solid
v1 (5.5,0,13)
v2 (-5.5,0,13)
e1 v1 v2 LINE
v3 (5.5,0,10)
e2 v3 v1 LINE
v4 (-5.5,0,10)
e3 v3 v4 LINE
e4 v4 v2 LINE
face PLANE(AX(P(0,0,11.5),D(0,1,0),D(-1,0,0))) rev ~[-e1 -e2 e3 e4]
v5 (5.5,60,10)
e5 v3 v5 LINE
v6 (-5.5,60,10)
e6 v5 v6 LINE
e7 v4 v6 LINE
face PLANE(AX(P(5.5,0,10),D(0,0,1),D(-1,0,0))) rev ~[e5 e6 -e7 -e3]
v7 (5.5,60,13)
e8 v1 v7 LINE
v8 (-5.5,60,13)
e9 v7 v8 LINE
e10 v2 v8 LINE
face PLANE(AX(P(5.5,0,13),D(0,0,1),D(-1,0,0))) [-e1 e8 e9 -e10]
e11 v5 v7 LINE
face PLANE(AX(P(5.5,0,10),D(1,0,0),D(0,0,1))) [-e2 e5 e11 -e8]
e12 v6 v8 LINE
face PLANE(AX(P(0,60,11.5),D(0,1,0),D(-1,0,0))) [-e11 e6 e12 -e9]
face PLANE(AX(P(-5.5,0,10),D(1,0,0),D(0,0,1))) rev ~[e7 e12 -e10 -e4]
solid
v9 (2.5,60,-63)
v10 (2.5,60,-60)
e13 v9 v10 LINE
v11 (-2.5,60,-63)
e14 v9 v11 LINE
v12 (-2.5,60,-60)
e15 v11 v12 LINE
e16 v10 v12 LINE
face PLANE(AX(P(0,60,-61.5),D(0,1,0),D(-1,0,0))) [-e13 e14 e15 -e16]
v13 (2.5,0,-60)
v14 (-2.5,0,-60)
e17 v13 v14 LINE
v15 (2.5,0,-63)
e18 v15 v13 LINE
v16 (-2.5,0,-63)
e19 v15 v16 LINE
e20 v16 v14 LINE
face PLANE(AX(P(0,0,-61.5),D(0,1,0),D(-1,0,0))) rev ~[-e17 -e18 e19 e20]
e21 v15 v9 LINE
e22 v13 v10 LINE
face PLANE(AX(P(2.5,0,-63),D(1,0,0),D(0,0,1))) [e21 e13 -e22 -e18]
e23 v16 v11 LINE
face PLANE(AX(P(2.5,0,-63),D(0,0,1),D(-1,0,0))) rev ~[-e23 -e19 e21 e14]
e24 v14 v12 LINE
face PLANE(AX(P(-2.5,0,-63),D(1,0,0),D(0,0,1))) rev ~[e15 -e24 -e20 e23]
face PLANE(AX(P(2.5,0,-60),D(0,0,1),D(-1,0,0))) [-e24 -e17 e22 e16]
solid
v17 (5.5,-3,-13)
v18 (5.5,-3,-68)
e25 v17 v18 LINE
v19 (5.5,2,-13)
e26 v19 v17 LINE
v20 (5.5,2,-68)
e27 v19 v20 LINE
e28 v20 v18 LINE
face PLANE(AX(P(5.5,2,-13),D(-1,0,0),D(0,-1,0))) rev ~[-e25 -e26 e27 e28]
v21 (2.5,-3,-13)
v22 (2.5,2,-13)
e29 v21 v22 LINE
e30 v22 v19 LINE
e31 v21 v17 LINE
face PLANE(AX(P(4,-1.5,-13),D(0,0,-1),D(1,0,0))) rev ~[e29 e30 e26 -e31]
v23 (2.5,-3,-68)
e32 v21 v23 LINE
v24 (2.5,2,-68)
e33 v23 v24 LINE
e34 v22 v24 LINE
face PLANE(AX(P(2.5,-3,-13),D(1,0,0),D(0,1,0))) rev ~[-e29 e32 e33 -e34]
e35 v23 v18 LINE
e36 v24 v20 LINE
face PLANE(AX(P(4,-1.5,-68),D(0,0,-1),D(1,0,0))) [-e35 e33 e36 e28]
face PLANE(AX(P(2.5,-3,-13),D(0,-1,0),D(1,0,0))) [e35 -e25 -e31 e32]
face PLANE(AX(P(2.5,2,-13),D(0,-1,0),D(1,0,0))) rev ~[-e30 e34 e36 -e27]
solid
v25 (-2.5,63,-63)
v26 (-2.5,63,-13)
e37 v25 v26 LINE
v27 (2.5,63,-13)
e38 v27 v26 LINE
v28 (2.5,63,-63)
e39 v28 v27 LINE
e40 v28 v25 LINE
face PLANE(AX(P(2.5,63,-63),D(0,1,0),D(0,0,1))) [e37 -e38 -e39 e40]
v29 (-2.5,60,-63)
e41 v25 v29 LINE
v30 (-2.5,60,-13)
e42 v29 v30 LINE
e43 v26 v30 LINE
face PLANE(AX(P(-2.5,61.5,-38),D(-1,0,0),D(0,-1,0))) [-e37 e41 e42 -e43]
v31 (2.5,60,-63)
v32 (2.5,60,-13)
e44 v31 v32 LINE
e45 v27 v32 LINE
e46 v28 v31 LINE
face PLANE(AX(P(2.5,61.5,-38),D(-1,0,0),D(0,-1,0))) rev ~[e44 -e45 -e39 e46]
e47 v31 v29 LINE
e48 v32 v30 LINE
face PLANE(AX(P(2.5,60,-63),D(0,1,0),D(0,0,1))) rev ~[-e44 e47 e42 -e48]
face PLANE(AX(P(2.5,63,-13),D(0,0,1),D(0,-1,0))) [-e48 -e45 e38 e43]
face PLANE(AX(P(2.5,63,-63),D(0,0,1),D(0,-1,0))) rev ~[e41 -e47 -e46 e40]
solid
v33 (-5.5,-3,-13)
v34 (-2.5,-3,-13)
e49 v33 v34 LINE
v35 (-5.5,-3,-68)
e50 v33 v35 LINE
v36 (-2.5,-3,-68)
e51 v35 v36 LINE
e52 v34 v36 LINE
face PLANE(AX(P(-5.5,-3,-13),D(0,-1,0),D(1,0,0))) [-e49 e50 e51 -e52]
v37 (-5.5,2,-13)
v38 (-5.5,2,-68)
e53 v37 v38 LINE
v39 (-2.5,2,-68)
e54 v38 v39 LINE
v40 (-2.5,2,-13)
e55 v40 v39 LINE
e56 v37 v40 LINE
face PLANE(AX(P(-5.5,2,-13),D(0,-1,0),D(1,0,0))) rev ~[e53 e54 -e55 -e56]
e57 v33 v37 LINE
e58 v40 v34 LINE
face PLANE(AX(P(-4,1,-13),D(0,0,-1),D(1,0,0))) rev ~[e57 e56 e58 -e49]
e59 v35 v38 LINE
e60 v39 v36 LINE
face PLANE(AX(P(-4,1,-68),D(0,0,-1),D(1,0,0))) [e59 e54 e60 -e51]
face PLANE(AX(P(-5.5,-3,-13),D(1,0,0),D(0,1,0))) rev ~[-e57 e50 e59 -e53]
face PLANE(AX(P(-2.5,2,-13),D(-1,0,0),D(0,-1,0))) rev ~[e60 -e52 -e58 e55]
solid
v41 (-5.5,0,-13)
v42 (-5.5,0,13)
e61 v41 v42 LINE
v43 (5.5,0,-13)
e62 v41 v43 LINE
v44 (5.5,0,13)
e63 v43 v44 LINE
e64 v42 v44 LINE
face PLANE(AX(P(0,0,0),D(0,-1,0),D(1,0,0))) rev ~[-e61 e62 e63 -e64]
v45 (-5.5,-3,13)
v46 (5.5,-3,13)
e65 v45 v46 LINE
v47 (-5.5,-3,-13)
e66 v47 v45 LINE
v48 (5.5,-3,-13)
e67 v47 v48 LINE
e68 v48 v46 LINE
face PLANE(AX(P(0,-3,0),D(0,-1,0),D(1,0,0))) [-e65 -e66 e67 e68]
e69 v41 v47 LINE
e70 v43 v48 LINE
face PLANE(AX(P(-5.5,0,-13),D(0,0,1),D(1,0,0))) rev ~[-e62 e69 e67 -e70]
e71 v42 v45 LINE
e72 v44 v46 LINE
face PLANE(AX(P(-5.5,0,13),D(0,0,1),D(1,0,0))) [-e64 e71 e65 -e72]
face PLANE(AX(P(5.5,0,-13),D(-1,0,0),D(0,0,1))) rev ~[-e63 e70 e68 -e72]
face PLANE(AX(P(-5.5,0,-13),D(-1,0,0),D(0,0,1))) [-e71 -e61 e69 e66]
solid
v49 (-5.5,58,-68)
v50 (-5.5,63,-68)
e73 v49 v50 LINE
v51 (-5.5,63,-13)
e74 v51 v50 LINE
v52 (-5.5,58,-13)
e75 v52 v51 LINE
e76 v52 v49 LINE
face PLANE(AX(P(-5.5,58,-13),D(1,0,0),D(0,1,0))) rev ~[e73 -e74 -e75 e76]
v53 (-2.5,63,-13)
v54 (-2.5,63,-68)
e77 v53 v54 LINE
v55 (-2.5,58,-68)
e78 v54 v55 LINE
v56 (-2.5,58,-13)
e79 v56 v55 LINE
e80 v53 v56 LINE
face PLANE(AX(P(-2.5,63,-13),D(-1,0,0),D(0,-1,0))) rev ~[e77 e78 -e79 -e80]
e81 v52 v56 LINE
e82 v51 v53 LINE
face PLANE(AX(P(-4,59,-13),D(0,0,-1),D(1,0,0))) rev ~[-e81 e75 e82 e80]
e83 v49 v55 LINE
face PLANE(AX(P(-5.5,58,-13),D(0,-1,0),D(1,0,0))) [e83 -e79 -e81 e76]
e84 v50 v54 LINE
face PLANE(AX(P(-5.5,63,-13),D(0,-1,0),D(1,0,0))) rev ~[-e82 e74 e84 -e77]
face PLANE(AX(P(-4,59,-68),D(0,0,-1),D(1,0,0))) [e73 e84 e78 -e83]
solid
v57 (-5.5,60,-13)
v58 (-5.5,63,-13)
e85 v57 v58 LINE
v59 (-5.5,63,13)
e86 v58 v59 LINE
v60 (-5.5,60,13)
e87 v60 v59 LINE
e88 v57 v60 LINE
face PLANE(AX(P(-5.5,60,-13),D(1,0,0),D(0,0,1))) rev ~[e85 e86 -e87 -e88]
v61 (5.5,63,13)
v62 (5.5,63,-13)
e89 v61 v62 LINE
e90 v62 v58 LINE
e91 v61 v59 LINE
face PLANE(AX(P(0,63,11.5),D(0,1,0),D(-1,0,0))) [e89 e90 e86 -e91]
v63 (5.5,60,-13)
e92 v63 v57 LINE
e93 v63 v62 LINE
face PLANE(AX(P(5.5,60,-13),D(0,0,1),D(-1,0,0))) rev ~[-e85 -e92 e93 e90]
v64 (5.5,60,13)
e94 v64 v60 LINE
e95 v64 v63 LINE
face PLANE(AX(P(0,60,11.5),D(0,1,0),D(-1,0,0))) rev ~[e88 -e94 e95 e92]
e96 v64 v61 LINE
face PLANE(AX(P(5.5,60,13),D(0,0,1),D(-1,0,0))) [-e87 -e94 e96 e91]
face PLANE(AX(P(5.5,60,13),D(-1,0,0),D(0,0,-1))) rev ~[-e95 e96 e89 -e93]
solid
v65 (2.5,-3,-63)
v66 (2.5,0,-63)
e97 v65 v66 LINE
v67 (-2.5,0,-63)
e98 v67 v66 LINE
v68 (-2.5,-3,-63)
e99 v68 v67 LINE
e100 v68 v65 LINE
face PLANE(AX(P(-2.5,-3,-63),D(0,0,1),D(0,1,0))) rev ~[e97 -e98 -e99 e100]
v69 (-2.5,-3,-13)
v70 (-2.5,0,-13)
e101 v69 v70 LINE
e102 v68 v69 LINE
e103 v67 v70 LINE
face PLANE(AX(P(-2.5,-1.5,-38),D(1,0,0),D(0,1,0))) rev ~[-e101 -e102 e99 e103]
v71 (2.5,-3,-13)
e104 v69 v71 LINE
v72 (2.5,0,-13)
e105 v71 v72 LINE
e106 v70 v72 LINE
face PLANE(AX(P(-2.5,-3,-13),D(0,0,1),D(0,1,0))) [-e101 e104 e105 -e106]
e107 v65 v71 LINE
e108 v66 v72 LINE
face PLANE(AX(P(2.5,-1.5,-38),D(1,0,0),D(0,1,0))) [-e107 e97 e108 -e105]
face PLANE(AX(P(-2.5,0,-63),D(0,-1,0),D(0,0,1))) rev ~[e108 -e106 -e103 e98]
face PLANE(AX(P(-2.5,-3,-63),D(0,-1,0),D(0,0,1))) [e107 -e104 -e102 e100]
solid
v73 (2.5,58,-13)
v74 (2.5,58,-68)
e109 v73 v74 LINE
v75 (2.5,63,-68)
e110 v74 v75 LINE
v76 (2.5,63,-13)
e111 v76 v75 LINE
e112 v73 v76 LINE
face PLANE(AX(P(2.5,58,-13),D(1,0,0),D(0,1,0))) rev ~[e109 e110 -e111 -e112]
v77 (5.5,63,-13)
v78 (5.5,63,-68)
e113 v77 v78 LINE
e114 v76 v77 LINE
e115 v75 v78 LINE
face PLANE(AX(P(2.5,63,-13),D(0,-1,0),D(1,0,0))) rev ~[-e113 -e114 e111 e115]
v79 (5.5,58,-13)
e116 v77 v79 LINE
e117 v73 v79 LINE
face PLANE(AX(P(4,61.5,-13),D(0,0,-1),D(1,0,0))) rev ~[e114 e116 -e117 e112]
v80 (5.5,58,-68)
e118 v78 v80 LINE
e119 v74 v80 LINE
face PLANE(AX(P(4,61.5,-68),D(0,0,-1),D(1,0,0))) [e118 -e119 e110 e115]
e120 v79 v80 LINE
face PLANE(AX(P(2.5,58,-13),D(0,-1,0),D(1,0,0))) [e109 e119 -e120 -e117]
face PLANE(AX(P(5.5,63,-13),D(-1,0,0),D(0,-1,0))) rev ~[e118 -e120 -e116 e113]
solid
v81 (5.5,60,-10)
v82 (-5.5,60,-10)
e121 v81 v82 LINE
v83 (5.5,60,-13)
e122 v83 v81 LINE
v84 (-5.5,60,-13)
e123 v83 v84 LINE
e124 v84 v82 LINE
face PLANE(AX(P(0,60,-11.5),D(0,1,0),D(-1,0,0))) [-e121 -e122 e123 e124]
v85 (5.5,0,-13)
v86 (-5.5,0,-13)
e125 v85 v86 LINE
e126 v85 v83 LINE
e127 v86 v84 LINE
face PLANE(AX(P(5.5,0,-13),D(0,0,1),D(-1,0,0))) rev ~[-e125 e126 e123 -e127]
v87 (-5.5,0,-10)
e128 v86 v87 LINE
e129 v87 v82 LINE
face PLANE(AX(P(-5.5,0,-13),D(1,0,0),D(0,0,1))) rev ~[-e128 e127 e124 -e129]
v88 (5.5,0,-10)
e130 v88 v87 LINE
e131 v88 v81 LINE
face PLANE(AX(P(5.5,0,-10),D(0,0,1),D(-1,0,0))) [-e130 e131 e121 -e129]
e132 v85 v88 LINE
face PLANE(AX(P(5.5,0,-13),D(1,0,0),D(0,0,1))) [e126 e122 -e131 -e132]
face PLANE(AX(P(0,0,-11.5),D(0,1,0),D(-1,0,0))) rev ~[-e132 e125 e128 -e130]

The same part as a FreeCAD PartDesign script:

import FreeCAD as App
import Part
import Sketcher

V = App.Vector
Q = App.Units.Quantity


def add_polygon(sketch, points):
    """Adds a closed chain of lines whose ends are joined by coincident constraints."""
    first, n = sketch.GeometryCount, len(points)
    for a, b in zip(points, points[1:] + points[:1]):
        sketch.addGeometry(Part.LineSegment(App.Vector(*a, 0), App.Vector(*b, 0)), False)
    for i in range(n):
        sketch.addConstraint(Sketcher.Constraint("Coincident", first + i, 2, first + (i + 1) % n, 1))

doc = App.newDocument("Part")
params = doc.addObject("Spreadsheet::Sheet", "Params")
for row, (alias, value) in enumerate([
    ("sketch1_width", "11 mm"),
    ("sketch1_height", "26 mm"),
    ("pad1_length", "3 mm"),
    ("sketch2_width", "11 mm"),
    ("sketch2_height", "3 mm"),
    ("pad2_length", "60 mm"),
    ("sketch3_width", "11 mm"),
    ("sketch3_height", "3 mm"),
    ("pad3_length", "60 mm"),
    ("sketch4_width", "11 mm"),
    ("sketch4_height", "26 mm"),
    ("pad4_length", "3 mm"),
    ("sketch5_width", "3 mm"),
    ("sketch5_height", "5 mm"),
    ("pad5_length", "55 mm"),
    ("sketch6_width", "3 mm"),
    ("sketch6_height", "5 mm"),
    ("pad6_length", "55 mm"),
    ("sketch7_width", "3 mm"),
    ("sketch7_height", "50 mm"),
    ("pad7_length", "5 mm"),
    ("sketch8_width", "3 mm"),
    ("sketch8_height", "5 mm"),
    ("pad8_length", "55 mm"),
    ("sketch9_width", "3 mm"),
    ("sketch9_height", "5 mm"),
    ("pad9_length", "55 mm"),
    ("sketch10_width", "5 mm"),
    ("sketch10_height", "3 mm"),
    ("pad10_length", "60 mm"),
    ("sketch11_width", "3 mm"),
    ("sketch11_height", "50 mm"),
    ("pad11_length", "5 mm"),
], start=1):
    params.set(f"A{row}", alias)
    params.set(f"B{row}", "=" + value)
    params.setAlias(f"B{row}", alias)

body = doc.addObject("PartDesign::Body", "Body")

# Sketch on XZ plane
sketch1 = body.newObject("Sketcher::SketchObject", "Sketch")
sketch1.AttachmentSupport = (doc.getObject("XZ_Plane"), [""])
sketch1.MapMode = "FlatFace"
add_polygon(sketch1, [(-6, 13), (-6, -13), (6, -13), (6, 13)])  # lines 0-3
sketch1.addConstraint([
    Sketcher.Constraint("Vertical", 0),
    Sketcher.Constraint("Horizontal", 1),
    Sketcher.Constraint("Vertical", 2),
    Sketcher.Constraint("Horizontal", 3),
    Sketcher.Constraint("Symmetric", 0, 2, 2, 2, -1, 1),
    Sketcher.Constraint("DistanceX", 1, 1, 1, 2, Q("11 mm")),
    Sketcher.Constraint("DistanceY", 0, 2, 0, 1, Q("26 mm")),
])
sketch1.setExpression("Constraints[9]", "Params.sketch1_width")
sketch1.setExpression("Constraints[10]", "Params.sketch1_height")
pad1 = body.newObject("PartDesign::Pad", "Pad")
pad1.Profile = sketch1
pad1.setExpression("Length", "Params.pad1_length")
body2 = doc.addObject("PartDesign::Body", "Body001")

# Sketch on XZ plane
sketch2 = body2.newObject("Sketcher::SketchObject", "Sketch001")
sketch2.AttachmentSupport = (doc.getObject("XZ_Plane001"), [""])
sketch2.MapMode = "FlatFace"
add_polygon(sketch2, [(5.5, 13), (5.5, 10), (-5.5, 10), (-5.5, 13)])  # lines 0-3
sketch2.addConstraint([
    Sketcher.Constraint("Vertical", 0),
    Sketcher.Constraint("Horizontal", 1),
    Sketcher.Constraint("Vertical", 2),
    Sketcher.Constraint("Horizontal", 3),
    Sketcher.Constraint("DistanceX", 1, 2, 1, 1, Q("11 mm")),
    Sketcher.Constraint("DistanceY", 0, 2, 0, 1, Q("3 mm")),
    Sketcher.Constraint("DistanceY", -1, 1, 0, 2, Q("10 mm")),
    Sketcher.Constraint("DistanceX", -1, 1, 0, 2, Q("5.5 mm")),
])
sketch2.setExpression("Constraints[8]", "Params.sketch2_width")
sketch2.setExpression("Constraints[9]", "Params.sketch2_height")
pad2 = body2.newObject("PartDesign::Pad", "Pad001")
pad2.Profile = sketch2
pad2.setExpression("Length", "Params.pad2_length")
pad2.Reversed = True
body3 = doc.addObject("PartDesign::Body", "Body002")

# Sketch on XZ plane
sketch3 = body3.newObject("Sketcher::SketchObject", "Sketch002")
sketch3.AttachmentSupport = (doc.getObject("XZ_Plane002"), [""])
sketch3.MapMode = "FlatFace"
add_polygon(sketch3, [(5.5, -10), (5.5, -13), (-5.5, -13), (-5.5, -10)])  # lines 0-3
sketch3.addConstraint([
    Sketcher.Constraint("Vertical", 0),
    Sketcher.Constraint("Horizontal", 1),
    Sketcher.Constraint("Vertical", 2),
    Sketcher.Constraint("Horizontal", 3),
    Sketcher.Constraint("DistanceX", 1, 2, 1, 1, Q("11 mm")),
    Sketcher.Constraint("DistanceY", 0, 2, 0, 1, Q("3 mm")),
    Sketcher.Constraint("DistanceY", 0, 2, -1, 1, Q("13 mm")),
    Sketcher.Constraint("DistanceX", -1, 1, 0, 2, Q("5.5 mm")),
])
sketch3.setExpression("Constraints[8]", "Params.sketch3_width")
sketch3.setExpression("Constraints[9]", "Params.sketch3_height")
pad3 = body3.newObject("PartDesign::Pad", "Pad002")
pad3.Profile = sketch3
pad3.setExpression("Length", "Params.pad3_length")
pad3.Reversed = True
body4 = doc.addObject("PartDesign::Body", "Body003")

# Sketch on XZ plane
sketch4 = body4.newObject("Sketcher::SketchObject", "Sketch003")
sketch4.AttachmentSupport = (doc.getObject("XZ_Plane003"), [""])
sketch4.MapMode = "FlatFace"
sketch4.AttachmentOffset = App.Placement(V(0, 0, -60), App.Rotation())
add_polygon(sketch4, [(6, 13), (6, -13), (-6, -13), (-6, 13)])  # lines 0-3
sketch4.addConstraint([
    Sketcher.Constraint("Vertical", 0),
    Sketcher.Constraint("Horizontal", 1),
    Sketcher.Constraint("Vertical", 2),
    Sketcher.Constraint("Horizontal", 3),
    Sketcher.Constraint("Symmetric", 0, 2, 2, 2, -1, 1),
    Sketcher.Constraint("DistanceX", 1, 2, 1, 1, Q("11 mm")),
    Sketcher.Constraint("DistanceY", 0, 2, 0, 1, Q("26 mm")),
])
sketch4.setExpression("Constraints[9]", "Params.sketch4_width")
sketch4.setExpression("Constraints[10]", "Params.sketch4_height")
pad4 = body4.newObject("PartDesign::Pad", "Pad003")
pad4.Profile = sketch4
pad4.setExpression("Length", "Params.pad4_length")
pad4.Reversed = True
body5 = doc.addObject("PartDesign::Body", "Body004")

# Sketch on XY plane
sketch5 = body5.newObject("Sketcher::SketchObject", "Sketch004")
sketch5.AttachmentSupport = (doc.getObject("XY_Plane004"), [""])
sketch5.MapMode = "FlatFace"
sketch5.AttachmentOffset = App.Placement(V(0, 0, -13), App.Rotation())
add_polygon(sketch5, [(-5.5, 2), (-2.5, 2), (-2.5, -3), (-5.5, -3)])  # lines 0-3
sketch5.addConstraint([
    Sketcher.Constraint("Horizontal", 0),
    Sketcher.Constraint("Vertical", 1),
    Sketcher.Constraint("Horizontal", 2),
    Sketcher.Constraint("Vertical", 3),
    Sketcher.Constraint("DistanceX", 0, 1, 0, 2, Q("3 mm")),
    Sketcher.Constraint("DistanceY", 1, 2, 1, 1, Q("5 mm")),
    Sketcher.Constraint("DistanceY", -1, 1, 0, 2, Q("2 mm")),
    Sketcher.Constraint("DistanceX", 0, 2, -1, 1, Q("2.5 mm")),
])
sketch5.setExpression("Constraints[8]", "Params.sketch5_width")
sketch5.setExpression("Constraints[9]", "Params.sketch5_height")
pad5 = body5.newObject("PartDesign::Pad", "Pad004")
pad5.Profile = sketch5
pad5.setExpression("Length", "Params.pad5_length")
pad5.Reversed = True
body6 = doc.addObject("PartDesign::Body", "Body005")

# Sketch on XY plane
sketch6 = body6.newObject("Sketcher::SketchObject", "Sketch005")
sketch6.AttachmentSupport = (doc.getObject("XY_Plane005"), [""])
sketch6.MapMode = "FlatFace"
sketch6.AttachmentOffset = App.Placement(V(0, 0, -13), App.Rotation())
add_polygon(sketch6, [(2.5, -3), (2.5, 2), (5.5, 2), (5.5, -3)])  # lines 0-3
sketch6.addConstraint([
    Sketcher.Constraint("Vertical", 0),
    Sketcher.Constraint("Horizontal", 1),
    Sketcher.Constraint("Vertical", 2),
    Sketcher.Constraint("Horizontal", 3),
    Sketcher.Constraint("DistanceX", 1, 1, 1, 2, Q("3 mm")),
    Sketcher.Constraint("DistanceY", 0, 1, 0, 2, Q("5 mm")),
    Sketcher.Constraint("DistanceY", -1, 1, 0, 2, Q("2 mm")),
    Sketcher.Constraint("DistanceX", -1, 1, 0, 2, Q("2.5 mm")),
])
sketch6.setExpression("Constraints[8]", "Params.sketch6_width")
sketch6.setExpression("Constraints[9]", "Params.sketch6_height")
pad6 = body6.newObject("PartDesign::Pad", "Pad005")
pad6.Profile = sketch6
pad6.setExpression("Length", "Params.pad6_length")
pad6.Reversed = True
body7 = doc.addObject("PartDesign::Body", "Body006")

# Sketch on YZ plane
sketch7 = body7.newObject("Sketcher::SketchObject", "Sketch006")
sketch7.AttachmentSupport = (doc.getObject("YZ_Plane006"), [""])
sketch7.MapMode = "FlatFace"
sketch7.AttachmentOffset = App.Placement(V(0, 0, -2.5), App.Rotation())
add_polygon(sketch7, [(-3, -13), (-3, -63), (0, -63), (0, -13)])  # lines 0-3
sketch7.addConstraint([
    Sketcher.Constraint("Vertical", 0),
    Sketcher.Constraint("Horizontal", 1),
    Sketcher.Constraint("Vertical", 2),
    Sketcher.Constraint("Horizontal", 3),
    Sketcher.Constraint("PointOnObject", 1, 2, -2),
    Sketcher.Constraint("DistanceX", 1, 1, 1, 2, Q("3 mm")),
    Sketcher.Constraint("DistanceY", 0, 2, 0, 1, Q("50 mm")),
    Sketcher.Constraint("DistanceY", 0, 2, -1, 1, Q("63 mm")),
])
sketch7.setExpression("Constraints[9]", "Params.sketch7_width")
sketch7.setExpression("Constraints[10]", "Params.sketch7_height")
pad7 = body7.newObject("PartDesign::Pad", "Pad006")
pad7.Profile = sketch7
pad7.setExpression("Length", "Params.pad7_length")
body8 = doc.addObject("PartDesign::Body", "Body007")

# Sketch on XY plane
sketch8 = body8.newObject("Sketcher::SketchObject", "Sketch007")
sketch8.AttachmentSupport = (doc.getObject("XY_Plane007"), [""])
sketch8.MapMode = "FlatFace"
sketch8.AttachmentOffset = App.Placement(V(0, 0, -13), App.Rotation())
add_polygon(sketch8, [(2.5, 63), (5.5, 63), (5.5, 58), (2.5, 58)])  # lines 0-3
sketch8.addConstraint([
    Sketcher.Constraint("Horizontal", 0),
    Sketcher.Constraint("Vertical", 1),
    Sketcher.Constraint("Horizontal", 2),
    Sketcher.Constraint("Vertical", 3),
    Sketcher.Constraint("DistanceX", 0, 1, 0, 2, Q("3 mm")),
    Sketcher.Constraint("DistanceY", 1, 2, 1, 1, Q("5 mm")),
    Sketcher.Constraint("DistanceY", -1, 1, 0, 2, Q("63 mm")),
    Sketcher.Constraint("DistanceX", -1, 1, 0, 2, Q("5.5 mm")),
])
sketch8.setExpression("Constraints[8]", "Params.sketch8_width")
sketch8.setExpression("Constraints[9]", "Params.sketch8_height")
pad8 = body8.newObject("PartDesign::Pad", "Pad007")
pad8.Profile = sketch8
pad8.setExpression("Length", "Params.pad8_length")
pad8.Reversed = True
body9 = doc.addObject("PartDesign::Body", "Body008")

# Sketch on XY plane
sketch9 = body9.newObject("Sketcher::SketchObject", "Sketch008")
sketch9.AttachmentSupport = (doc.getObject("XY_Plane008"), [""])
sketch9.MapMode = "FlatFace"
sketch9.AttachmentOffset = App.Placement(V(0, 0, -13), App.Rotation())
add_polygon(sketch9, [(-5.5, 58), (-5.5, 63), (-2.5, 63), (-2.5, 58)])  # lines 0-3
sketch9.addConstraint([
    Sketcher.Constraint("Vertical", 0),
    Sketcher.Constraint("Horizontal", 1),
    Sketcher.Constraint("Vertical", 2),
    Sketcher.Constraint("Horizontal", 3),
    Sketcher.Constraint("DistanceX", 1, 1, 1, 2, Q("3 mm")),
    Sketcher.Constraint("DistanceY", 0, 1, 0, 2, Q("5 mm")),
    Sketcher.Constraint("DistanceY", -1, 1, 0, 2, Q("63 mm")),
    Sketcher.Constraint("DistanceX", 0, 2, -1, 1, Q("5.5 mm")),
])
sketch9.setExpression("Constraints[8]", "Params.sketch9_width")
sketch9.setExpression("Constraints[9]", "Params.sketch9_height")
pad9 = body9.newObject("PartDesign::Pad", "Pad008")
pad9.Profile = sketch9
pad9.setExpression("Length", "Params.pad9_length")
pad9.Reversed = True
body10 = doc.addObject("PartDesign::Body", "Body009")

# Sketch on XZ plane
sketch10 = body10.newObject("Sketcher::SketchObject", "Sketch009")
sketch10.AttachmentSupport = (doc.getObject("XZ_Plane009"), [""])
sketch10.MapMode = "FlatFace"
add_polygon(sketch10, [(2.5, -60), (2.5, -63), (-2.5, -63), (-2.5, -60)])  # lines 0-3
sketch10.addConstraint([
    Sketcher.Constraint("Vertical", 0),
    Sketcher.Constraint("Horizontal", 1),
    Sketcher.Constraint("Vertical", 2),
    Sketcher.Constraint("Horizontal", 3),
    Sketcher.Constraint("DistanceX", 1, 2, 1, 1, Q("5 mm")),
    Sketcher.Constraint("DistanceY", 0, 2, 0, 1, Q("3 mm")),
    Sketcher.Constraint("DistanceY", 0, 2, -1, 1, Q("63 mm")),
    Sketcher.Constraint("DistanceX", -1, 1, 0, 2, Q("2.5 mm")),
])
sketch10.setExpression("Constraints[8]", "Params.sketch10_width")
sketch10.setExpression("Constraints[9]", "Params.sketch10_height")
pad10 = body10.newObject("PartDesign::Pad", "Pad009")
pad10.Profile = sketch10
pad10.setExpression("Length", "Params.pad10_length")
pad10.Reversed = True
body11 = doc.addObject("PartDesign::Body", "Body010")

# Sketch on YZ plane
sketch11 = body11.newObject("Sketcher::SketchObject", "Sketch010")
sketch11.AttachmentSupport = (doc.getObject("YZ_Plane010"), [""])
sketch11.MapMode = "FlatFace"
sketch11.AttachmentOffset = App.Placement(V(0, 0, 2.5), App.Rotation())
add_polygon(sketch11, [(63, -13), (63, -63), (60, -63), (60, -13)])  # lines 0-3
sketch11.addConstraint([
    Sketcher.Constraint("Vertical", 0),
    Sketcher.Constraint("Horizontal", 1),
    Sketcher.Constraint("Vertical", 2),
    Sketcher.Constraint("Horizontal", 3),
    Sketcher.Constraint("DistanceX", 1, 2, 1, 1, Q("3 mm")),
    Sketcher.Constraint("DistanceY", 0, 2, 0, 1, Q("50 mm")),
    Sketcher.Constraint("DistanceX", -1, 1, 0, 2, Q("63 mm")),
    Sketcher.Constraint("DistanceY", 0, 2, -1, 1, Q("63 mm")),
])
sketch11.setExpression("Constraints[8]", "Params.sketch11_width")
sketch11.setExpression("Constraints[9]", "Params.sketch11_height")
pad11 = body11.newObject("PartDesign::Pad", "Pad010")
pad11.Profile = sketch11
pad11.setExpression("Length", "Params.pad11_length")
pad11.Reversed = True

doc.recompute()
